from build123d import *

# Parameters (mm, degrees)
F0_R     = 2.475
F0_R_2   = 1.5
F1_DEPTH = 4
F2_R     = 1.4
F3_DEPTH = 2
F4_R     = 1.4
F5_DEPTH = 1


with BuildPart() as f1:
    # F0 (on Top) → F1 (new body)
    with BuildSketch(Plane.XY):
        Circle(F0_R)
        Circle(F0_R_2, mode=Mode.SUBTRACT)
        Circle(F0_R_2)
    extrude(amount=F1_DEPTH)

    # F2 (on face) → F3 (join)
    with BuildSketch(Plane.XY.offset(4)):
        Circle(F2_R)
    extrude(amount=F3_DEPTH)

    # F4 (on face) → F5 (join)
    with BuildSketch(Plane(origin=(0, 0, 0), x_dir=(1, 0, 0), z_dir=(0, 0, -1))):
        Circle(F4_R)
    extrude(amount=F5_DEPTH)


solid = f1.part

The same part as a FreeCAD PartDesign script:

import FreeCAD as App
import Part
import Sketcher

V = App.Vector

doc = App.newDocument("Part")
body = doc.addObject("PartDesign::Body", "Body")

# Sketch on XY plane
sketch1 = doc.addObject("Sketcher::SketchObject", "Sketch")
body.addObject(sketch1)
sketch1.AttachmentSupport = (doc.XY_Plane, [""])
sketch1.MapMode = "FlatFace"
sketch1.addGeometry(Part.Circle(V(0, 0, 0), V(0, 0, 1), 2.475), False)
sketch1.addConstraint(Sketcher.Constraint("Coincident", 0, 3, -1, 1))
sketch1.addConstraint(Sketcher.Constraint("Diameter", 0, 4.95))
pad1 = doc.addObject("PartDesign::Pad", "Pad")
body.addObject(pad1)
pad1.Profile = sketch1
pad1.Length = 4

# Sketch on XY plane
sketch2 = doc.addObject("Sketcher::SketchObject", "Sketch001")
body.addObject(sketch2)
sketch2.AttachmentSupport = (doc.XY_Plane, [""])
sketch2.MapMode = "FlatFace"
sketch2.AttachmentOffset = App.Placement(V(0, 0, 4), App.Rotation())
sketch2.addGeometry(Part.Circle(V(0, 0, 0), V(0, 0, 1), 1.4), False)
sketch2.addConstraint(Sketcher.Constraint("Coincident", 0, 3, -1, 1))
sketch2.addConstraint(Sketcher.Constraint("Diameter", 0, 2.8))
pad2 = doc.addObject("PartDesign::Pad", "Pad001")
body.addObject(pad2)
pad2.Profile = sketch2
pad2.Length = 2

# Sketch on XY plane
sketch3 = doc.addObject("Sketcher::SketchObject", "Sketch002")
body.addObject(sketch3)
sketch3.AttachmentSupport = (doc.XY_Plane, [""])
sketch3.MapMode = "FlatFace"
sketch3.addGeometry(Part.Circle(V(0, 0, 0), V(0, 0, 1), 1.4), False)
sketch3.addConstraint(Sketcher.Constraint("Coincident", 0, 3, -1, 1))
sketch3.addConstraint(Sketcher.Constraint("Diameter", 0, 2.8))
pad3 = doc.addObject("PartDesign::Pad", "Pad002")
body.addObject(pad3)
pad3.Profile = sketch3
pad3.Length = 1
pad3.Reversed = True

doc.recompute()
